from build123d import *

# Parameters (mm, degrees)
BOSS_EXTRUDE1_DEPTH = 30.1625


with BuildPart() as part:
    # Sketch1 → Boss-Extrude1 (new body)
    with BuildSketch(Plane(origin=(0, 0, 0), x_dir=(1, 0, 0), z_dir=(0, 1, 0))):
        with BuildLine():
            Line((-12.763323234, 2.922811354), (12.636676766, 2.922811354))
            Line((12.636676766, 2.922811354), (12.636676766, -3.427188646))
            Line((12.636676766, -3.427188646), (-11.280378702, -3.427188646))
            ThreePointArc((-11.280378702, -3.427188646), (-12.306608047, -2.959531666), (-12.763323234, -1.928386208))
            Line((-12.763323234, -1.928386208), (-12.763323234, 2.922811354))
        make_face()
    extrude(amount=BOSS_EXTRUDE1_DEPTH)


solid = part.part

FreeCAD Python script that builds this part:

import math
import FreeCAD as App
import Part
import Sketcher
from FreeCAD import Vector
Q = App.Units.Quantity

doc = App.newDocument("Part")
body = doc.addObject("PartDesign::Body", "Body")

# Sketch on XZ plane
sketch1 = body.newObject("Sketcher::SketchObject", "Sketch")
sketch1.AttachmentSupport = (doc.getObject("XZ_Plane"), [""])
sketch1.MapMode = "FlatFace"
sketch1.addGeometry([
    Part.LineSegment(Vector(12.6, -2.9, 0), Vector(-12.8, -2.9, 0)),  # 0
    Part.LineSegment(Vector(-12.8, -2.9, 0), Vector(-12.8, 1.9, 0)),  # 1
    Part.ArcOfCircle(Part.Circle(Vector(-11.2, 1.8, 0), Vector(0, 0, 1), 1.6), math.radians(94), math.radians(177)),  # 2
    Part.LineSegment(Vector(-11.3, 3.4, 0), Vector(12.6, 3.4, 0)),  # 3
    Part.LineSegment(Vector(12.6, 3.4, 0), Vector(12.6, -2.9, 0)),  # 4
], False)
sketch1.addConstraint([
    Sketcher.Constraint("Coincident", 0, 2, 1, 1),
    Sketcher.Constraint("Coincident", 1, 2, 2, 2),
    Sketcher.Constraint("Coincident", 2, 1, 3, 1),
    Sketcher.Constraint("Coincident", 3, 2, 4, 1),
    Sketcher.Constraint("Coincident", 4, 2, 0, 1),
    Sketcher.Constraint("Horizontal", 0),
    Sketcher.Constraint("Vertical", 1),
    Sketcher.Constraint("Horizontal", 3),
    Sketcher.Constraint("Vertical", 4),
    Sketcher.Constraint("DistanceX", 0, 2, 0, 1, Q("1 in")),
    Sketcher.Constraint("Radius", 2, Q("0.0625 in")),
    Sketcher.Constraint("DistanceY", 4, 2, 4, 1, Q("0.25 in")),
    Sketcher.Constraint("DistanceX", 0, 2, 2, 3, 1.585201),
    Sketcher.Constraint("DistanceX", 3, 1, 3, 2, 23.917055),
    Sketcher.Constraint("DistanceX", 2, 3, -1, 1, 11.178122),
    Sketcher.Constraint("DistanceY", 0, 2, -1, 1, 2.922811),
])
pad1 = body.newObject("PartDesign::Pad", "Pad")
pad1.Profile = sketch1
pad1.Length = Q("1.1875 in")
pad1.Reversed = True

doc.recompute()
